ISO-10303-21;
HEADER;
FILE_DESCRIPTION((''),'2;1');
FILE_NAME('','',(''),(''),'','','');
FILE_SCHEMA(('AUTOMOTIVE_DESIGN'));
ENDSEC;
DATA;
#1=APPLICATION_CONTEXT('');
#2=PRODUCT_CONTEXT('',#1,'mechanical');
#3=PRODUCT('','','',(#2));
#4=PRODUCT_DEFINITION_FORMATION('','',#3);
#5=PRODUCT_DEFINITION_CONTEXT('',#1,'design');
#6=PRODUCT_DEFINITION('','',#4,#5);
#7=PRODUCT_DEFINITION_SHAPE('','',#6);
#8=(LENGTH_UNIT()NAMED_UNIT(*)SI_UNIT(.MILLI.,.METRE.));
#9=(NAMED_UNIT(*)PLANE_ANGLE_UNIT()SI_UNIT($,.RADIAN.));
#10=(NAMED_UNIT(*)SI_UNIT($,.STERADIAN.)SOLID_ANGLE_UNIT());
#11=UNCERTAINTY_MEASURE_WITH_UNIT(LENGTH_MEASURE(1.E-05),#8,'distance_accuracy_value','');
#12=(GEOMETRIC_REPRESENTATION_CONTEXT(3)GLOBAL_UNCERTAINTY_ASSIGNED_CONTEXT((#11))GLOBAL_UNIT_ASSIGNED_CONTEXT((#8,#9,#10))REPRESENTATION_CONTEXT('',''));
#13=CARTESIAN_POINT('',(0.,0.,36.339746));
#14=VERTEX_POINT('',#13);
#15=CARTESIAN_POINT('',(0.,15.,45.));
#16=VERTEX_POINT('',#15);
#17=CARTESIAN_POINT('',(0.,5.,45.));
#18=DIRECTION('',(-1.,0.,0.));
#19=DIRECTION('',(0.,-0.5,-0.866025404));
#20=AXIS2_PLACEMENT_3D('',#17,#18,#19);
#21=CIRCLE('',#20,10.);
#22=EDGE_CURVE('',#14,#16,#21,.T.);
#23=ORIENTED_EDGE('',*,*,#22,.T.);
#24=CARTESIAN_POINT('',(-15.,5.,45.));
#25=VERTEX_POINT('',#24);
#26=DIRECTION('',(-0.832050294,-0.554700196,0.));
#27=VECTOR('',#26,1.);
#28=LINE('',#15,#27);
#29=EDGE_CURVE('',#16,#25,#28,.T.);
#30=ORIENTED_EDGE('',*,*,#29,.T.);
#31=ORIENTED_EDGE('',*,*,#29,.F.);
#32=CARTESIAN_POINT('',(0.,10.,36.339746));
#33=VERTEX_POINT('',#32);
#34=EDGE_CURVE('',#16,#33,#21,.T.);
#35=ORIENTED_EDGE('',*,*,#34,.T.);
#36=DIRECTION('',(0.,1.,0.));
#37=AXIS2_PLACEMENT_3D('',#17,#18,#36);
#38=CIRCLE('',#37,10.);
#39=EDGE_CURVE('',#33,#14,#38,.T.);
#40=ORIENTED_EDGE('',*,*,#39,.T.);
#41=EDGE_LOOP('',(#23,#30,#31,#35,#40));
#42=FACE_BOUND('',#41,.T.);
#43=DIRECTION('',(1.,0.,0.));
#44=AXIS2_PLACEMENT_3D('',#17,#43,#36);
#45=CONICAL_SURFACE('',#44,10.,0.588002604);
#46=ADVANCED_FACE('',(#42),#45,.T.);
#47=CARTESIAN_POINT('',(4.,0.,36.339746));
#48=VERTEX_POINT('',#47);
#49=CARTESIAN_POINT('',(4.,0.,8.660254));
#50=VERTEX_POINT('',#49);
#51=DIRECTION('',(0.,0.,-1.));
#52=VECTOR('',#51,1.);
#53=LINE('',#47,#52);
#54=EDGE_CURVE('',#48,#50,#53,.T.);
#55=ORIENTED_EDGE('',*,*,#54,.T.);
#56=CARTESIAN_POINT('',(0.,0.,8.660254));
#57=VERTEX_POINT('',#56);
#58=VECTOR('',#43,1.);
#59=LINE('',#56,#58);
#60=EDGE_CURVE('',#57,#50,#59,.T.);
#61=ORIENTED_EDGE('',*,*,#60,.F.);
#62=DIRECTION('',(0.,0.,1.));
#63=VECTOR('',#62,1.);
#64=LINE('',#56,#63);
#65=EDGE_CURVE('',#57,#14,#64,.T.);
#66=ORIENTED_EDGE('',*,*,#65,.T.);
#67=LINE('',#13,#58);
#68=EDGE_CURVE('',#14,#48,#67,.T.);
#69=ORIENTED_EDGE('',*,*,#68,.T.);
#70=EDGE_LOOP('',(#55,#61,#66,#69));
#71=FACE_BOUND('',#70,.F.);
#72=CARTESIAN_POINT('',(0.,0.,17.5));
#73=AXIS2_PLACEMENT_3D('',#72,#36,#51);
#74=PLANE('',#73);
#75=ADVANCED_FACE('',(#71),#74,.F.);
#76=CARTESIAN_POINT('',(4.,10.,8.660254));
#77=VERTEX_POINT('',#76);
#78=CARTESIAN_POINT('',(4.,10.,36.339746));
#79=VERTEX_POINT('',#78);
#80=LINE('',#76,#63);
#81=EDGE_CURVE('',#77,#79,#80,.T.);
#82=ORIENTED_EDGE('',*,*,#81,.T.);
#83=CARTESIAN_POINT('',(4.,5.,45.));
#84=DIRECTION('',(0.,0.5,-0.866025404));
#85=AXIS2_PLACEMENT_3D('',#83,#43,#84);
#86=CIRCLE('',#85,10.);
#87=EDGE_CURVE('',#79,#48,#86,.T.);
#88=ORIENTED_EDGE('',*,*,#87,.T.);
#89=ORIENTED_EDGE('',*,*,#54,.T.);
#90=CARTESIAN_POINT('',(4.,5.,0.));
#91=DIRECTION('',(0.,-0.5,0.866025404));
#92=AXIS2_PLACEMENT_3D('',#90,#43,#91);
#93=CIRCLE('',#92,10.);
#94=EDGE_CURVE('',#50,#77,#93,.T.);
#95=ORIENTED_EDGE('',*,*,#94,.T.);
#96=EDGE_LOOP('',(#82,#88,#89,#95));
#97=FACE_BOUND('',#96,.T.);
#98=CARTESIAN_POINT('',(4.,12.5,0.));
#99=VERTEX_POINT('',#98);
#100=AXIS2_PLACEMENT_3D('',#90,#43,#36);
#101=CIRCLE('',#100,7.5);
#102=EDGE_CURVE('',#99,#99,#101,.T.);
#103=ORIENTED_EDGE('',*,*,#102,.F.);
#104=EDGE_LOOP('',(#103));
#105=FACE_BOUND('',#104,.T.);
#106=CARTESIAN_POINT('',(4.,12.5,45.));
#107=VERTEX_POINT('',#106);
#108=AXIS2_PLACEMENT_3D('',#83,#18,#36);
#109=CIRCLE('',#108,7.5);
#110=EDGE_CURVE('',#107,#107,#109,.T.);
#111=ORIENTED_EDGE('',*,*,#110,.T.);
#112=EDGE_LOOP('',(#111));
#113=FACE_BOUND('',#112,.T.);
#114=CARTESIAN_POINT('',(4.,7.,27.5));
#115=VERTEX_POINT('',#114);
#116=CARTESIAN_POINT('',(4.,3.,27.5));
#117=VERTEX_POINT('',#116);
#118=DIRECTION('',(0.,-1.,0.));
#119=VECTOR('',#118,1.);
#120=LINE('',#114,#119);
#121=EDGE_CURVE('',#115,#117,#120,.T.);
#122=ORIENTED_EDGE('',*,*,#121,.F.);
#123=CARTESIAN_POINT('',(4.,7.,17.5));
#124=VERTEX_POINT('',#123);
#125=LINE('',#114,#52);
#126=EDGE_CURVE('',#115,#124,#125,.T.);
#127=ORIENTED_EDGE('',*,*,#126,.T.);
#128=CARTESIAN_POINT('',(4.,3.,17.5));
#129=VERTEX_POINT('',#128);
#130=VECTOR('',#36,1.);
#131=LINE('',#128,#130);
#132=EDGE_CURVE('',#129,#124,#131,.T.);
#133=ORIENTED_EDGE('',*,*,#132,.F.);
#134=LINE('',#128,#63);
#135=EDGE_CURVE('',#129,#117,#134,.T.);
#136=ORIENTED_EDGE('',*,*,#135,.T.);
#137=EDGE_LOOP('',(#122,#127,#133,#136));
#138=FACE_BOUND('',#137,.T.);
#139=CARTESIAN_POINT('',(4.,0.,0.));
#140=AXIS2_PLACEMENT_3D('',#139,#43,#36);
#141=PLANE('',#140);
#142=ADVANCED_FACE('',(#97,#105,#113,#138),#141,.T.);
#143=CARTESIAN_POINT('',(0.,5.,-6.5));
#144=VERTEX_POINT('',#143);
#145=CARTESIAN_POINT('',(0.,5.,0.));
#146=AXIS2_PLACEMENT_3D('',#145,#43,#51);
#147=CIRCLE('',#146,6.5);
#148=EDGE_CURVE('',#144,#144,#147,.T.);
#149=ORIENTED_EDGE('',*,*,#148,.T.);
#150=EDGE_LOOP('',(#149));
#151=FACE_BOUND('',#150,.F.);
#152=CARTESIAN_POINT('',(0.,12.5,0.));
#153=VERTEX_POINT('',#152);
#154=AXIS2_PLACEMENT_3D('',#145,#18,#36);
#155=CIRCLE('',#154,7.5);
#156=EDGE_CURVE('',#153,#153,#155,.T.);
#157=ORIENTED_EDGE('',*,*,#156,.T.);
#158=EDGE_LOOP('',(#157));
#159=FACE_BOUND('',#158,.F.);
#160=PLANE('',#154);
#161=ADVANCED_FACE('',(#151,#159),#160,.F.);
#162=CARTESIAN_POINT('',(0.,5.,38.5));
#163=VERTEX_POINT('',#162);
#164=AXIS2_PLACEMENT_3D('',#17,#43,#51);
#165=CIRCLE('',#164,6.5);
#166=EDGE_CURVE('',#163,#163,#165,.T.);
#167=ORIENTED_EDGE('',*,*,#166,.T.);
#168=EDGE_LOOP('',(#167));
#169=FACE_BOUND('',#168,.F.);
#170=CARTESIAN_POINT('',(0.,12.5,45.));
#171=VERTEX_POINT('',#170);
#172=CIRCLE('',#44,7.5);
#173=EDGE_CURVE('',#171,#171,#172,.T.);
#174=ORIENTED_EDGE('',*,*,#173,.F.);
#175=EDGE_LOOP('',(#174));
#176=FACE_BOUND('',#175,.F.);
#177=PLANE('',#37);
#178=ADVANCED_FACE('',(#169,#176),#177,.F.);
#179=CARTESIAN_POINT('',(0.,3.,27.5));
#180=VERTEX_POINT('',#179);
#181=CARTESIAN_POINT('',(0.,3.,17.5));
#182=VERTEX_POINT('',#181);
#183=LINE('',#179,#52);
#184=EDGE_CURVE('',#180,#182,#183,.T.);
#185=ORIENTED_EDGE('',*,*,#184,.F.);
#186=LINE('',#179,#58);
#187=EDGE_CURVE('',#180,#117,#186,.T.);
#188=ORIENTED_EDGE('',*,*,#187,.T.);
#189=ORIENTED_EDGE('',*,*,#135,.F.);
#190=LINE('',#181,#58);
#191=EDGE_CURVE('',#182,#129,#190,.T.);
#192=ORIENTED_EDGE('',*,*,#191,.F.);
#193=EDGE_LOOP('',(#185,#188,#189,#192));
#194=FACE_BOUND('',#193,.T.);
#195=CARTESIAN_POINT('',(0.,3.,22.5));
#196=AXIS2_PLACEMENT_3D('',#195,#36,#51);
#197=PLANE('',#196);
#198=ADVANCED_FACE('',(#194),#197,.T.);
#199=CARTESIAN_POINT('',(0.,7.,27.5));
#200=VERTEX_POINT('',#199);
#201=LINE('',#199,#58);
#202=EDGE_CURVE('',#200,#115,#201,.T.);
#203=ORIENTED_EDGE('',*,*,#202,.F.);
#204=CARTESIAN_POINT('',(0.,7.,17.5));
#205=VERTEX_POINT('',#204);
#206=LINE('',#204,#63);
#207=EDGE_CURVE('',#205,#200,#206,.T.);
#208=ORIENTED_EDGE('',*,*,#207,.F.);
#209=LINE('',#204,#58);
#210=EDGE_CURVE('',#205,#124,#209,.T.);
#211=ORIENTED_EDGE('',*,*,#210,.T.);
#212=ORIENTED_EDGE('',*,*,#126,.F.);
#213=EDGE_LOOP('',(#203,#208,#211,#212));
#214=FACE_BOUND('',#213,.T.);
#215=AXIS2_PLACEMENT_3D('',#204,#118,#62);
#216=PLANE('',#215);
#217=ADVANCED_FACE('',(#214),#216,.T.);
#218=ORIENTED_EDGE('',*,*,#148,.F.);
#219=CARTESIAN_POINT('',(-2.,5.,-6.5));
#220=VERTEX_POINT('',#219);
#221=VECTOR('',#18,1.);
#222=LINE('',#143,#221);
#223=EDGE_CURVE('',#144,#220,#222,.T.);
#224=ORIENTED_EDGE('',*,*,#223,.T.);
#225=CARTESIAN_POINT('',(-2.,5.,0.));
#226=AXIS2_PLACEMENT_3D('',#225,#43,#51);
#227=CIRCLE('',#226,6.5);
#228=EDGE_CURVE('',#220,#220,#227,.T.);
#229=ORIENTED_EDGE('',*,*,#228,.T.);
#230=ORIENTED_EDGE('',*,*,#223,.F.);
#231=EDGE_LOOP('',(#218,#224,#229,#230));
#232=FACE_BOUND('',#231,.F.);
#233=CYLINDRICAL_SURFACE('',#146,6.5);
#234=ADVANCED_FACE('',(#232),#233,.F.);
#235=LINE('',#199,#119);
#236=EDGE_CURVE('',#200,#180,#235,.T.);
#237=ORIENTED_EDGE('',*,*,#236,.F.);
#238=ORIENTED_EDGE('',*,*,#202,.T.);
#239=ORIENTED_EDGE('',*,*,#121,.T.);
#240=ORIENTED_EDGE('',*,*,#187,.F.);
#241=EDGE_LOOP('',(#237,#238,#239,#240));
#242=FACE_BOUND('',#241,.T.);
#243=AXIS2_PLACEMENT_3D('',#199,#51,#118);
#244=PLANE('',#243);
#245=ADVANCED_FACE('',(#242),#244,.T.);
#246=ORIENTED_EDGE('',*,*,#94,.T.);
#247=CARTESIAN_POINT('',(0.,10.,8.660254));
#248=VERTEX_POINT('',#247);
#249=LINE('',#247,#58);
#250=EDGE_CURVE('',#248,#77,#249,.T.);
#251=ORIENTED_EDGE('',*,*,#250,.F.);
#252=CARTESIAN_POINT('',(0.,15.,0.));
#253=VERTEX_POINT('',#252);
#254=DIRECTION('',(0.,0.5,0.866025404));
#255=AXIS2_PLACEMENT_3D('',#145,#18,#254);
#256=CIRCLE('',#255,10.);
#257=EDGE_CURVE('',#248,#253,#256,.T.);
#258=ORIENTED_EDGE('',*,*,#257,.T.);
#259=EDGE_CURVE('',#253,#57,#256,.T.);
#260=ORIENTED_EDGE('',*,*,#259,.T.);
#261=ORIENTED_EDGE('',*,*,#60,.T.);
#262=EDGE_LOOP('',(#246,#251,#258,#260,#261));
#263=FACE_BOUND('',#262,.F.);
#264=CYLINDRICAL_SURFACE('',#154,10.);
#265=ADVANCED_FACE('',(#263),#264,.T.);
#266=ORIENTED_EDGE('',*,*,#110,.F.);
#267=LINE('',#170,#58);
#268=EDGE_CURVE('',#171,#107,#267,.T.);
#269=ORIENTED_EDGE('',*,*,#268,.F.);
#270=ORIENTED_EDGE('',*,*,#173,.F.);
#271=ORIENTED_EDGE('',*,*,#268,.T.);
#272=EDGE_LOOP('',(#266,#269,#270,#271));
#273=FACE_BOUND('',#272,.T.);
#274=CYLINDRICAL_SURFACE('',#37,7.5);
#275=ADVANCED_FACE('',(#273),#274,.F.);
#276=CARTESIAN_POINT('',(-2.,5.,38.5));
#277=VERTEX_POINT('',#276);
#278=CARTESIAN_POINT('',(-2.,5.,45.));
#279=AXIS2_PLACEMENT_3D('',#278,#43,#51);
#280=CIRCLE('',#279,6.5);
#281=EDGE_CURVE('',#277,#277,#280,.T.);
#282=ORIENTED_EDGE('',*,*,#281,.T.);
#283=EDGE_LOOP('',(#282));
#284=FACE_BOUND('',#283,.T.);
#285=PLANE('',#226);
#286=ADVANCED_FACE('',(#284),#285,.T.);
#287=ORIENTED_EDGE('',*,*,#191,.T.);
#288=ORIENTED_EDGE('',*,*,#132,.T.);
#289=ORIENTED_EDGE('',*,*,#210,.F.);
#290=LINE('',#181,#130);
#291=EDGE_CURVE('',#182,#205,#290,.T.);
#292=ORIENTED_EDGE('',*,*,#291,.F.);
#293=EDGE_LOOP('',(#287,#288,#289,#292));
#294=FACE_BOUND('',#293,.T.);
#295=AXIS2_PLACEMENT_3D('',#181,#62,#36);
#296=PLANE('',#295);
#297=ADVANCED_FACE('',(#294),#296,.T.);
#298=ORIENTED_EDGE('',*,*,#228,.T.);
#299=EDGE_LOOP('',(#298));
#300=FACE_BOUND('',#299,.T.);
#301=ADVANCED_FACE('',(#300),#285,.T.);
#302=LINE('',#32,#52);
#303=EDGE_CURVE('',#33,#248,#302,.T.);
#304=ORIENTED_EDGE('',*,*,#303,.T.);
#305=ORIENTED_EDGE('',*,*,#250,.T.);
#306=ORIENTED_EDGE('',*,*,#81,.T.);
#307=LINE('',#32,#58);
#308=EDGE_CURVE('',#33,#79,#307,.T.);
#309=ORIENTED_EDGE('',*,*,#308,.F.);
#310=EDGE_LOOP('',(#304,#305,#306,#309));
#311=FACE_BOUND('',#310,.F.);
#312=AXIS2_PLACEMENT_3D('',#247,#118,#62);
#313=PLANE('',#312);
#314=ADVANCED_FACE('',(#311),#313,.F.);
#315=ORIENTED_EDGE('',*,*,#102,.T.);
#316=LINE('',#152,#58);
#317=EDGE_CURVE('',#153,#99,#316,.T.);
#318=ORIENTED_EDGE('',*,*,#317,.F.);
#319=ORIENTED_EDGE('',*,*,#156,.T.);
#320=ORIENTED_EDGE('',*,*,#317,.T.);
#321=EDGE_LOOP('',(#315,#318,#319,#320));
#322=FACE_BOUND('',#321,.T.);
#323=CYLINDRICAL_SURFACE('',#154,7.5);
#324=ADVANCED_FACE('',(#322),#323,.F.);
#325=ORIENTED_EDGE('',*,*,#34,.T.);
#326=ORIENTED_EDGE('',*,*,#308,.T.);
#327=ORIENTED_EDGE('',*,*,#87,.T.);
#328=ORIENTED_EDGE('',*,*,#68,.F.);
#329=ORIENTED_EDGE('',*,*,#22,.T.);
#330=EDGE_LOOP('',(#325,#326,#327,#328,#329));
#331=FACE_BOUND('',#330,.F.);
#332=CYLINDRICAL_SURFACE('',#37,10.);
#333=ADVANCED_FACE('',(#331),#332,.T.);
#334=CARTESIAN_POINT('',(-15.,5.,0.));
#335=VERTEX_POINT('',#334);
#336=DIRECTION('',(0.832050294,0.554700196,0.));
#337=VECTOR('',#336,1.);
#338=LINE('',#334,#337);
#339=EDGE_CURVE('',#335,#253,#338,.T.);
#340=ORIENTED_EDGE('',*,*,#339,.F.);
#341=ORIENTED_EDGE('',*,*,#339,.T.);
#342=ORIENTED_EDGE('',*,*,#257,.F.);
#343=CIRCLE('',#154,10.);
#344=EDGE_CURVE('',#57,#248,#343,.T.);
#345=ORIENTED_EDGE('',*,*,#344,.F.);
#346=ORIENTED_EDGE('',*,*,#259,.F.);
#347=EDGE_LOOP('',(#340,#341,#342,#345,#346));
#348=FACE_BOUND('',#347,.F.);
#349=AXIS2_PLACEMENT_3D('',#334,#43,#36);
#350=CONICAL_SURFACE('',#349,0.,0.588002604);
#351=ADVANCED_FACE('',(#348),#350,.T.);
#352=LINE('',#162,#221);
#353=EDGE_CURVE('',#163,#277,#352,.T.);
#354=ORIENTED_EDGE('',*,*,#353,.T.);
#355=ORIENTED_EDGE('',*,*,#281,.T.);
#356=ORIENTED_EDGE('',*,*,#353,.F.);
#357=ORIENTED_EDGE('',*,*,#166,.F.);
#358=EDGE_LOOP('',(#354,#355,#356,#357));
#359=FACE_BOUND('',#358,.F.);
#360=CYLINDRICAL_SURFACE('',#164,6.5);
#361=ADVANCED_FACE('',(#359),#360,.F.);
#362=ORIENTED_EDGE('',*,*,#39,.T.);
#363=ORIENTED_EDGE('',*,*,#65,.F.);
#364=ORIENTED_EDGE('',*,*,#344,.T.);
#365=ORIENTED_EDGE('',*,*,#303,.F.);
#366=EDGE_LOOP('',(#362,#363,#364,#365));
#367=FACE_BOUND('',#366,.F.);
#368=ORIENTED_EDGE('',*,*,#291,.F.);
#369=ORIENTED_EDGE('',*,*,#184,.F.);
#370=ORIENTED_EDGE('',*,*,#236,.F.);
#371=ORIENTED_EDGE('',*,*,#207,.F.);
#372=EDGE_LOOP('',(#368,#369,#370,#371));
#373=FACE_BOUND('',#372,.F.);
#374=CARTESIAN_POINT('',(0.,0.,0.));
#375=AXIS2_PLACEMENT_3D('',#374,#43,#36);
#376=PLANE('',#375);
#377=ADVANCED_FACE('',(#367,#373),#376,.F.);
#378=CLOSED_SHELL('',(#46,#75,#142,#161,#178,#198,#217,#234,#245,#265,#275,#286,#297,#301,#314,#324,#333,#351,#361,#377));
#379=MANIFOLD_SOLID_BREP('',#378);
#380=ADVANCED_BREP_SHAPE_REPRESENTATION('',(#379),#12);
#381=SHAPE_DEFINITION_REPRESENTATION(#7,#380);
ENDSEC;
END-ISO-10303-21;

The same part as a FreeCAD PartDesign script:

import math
import FreeCAD as App
import Part
import Sketcher

V = App.Vector
Q = App.Units.Quantity

doc = App.newDocument("Part")
body = doc.addObject("PartDesign::Body", "Body")

# Sketch on YZ plane
sketch1 = doc.addObject("Sketcher::SketchObject", "Sketch")
body.addObject(sketch1)
sketch1.AttachmentSupport = (doc.YZ_Plane, [""])
sketch1.MapMode = "FlatFace"
sketch1.addGeometry([
    Part.LineSegment(V(10, 8.660254, 0), V(10, 36.339746, 0)),  # 0
    Part.ArcOfCircle(Part.Circle(V(5, 45, 0), V(0, 0, 1), 10), math.radians(-60), math.radians(240)),  # 1
    Part.LineSegment(V(0, 36.339746, 0), V(0, 8.660254, 0)),  # 2
    Part.ArcOfCircle(Part.Circle(V(5, 0, 0), V(0, 0, 1), 10), math.radians(120), math.radians(420)),  # 3
    Part.Circle(V(5, 0, 0), V(0, 0, 1), 7.5),  # 4
    Part.LineSegment(V(3, 17.5, 0), V(3, 27.5, 0)),  # 5
    Part.LineSegment(V(3, 27.5, 0), V(7, 27.5, 0)),  # 6
    Part.LineSegment(V(7, 27.5, 0), V(7, 17.5, 0)),  # 7
    Part.LineSegment(V(7, 17.5, 0), V(3, 17.5, 0)),  # 8
    Part.Circle(V(5, 45, 0), V(0, 0, 1), 7.5),  # 9
], False)
sketch1.addConstraint([
    Sketcher.Constraint("Coincident", 0, 2, 1, 1),
    Sketcher.Constraint("Coincident", 1, 2, 2, 1),
    Sketcher.Constraint("Coincident", 2, 2, 3, 1),
    Sketcher.Constraint("Coincident", 3, 2, 0, 1),
    Sketcher.Constraint("Coincident", 5, 2, 6, 1),
    Sketcher.Constraint("Coincident", 6, 2, 7, 1),
    Sketcher.Constraint("Coincident", 7, 2, 8, 1),
    Sketcher.Constraint("Coincident", 8, 2, 5, 1),
    Sketcher.Constraint("Vertical", 0),
    Sketcher.Constraint("Vertical", 2),
    Sketcher.Constraint("Vertical", 5),
    Sketcher.Constraint("Horizontal", 6),
    Sketcher.Constraint("Vertical", 7),
    Sketcher.Constraint("Horizontal", 8),
    Sketcher.Constraint("Coincident", 4, 3, 3, 3),
    Sketcher.Constraint("Coincident", 9, 3, 1, 3),
    Sketcher.Constraint("Equal", 1, 3),
    Sketcher.Constraint("Equal", 4, 9),
    Sketcher.Constraint("PointOnObject", 3, 3, -1),
    Sketcher.Constraint("PointOnObject", 1, 2, -2),
    Sketcher.Constraint("Horizontal", 0, 2, 1, 2),
    Sketcher.Constraint("Horizontal", 2, 2, 3, 2),
    Sketcher.Constraint("Diameter", 4, Q("15 mm")),
    Sketcher.Constraint("Radius", 1, Q("10 mm")),
    Sketcher.Constraint("DistanceY", 5, 1, 5, 2, Q("10 mm")),
    Sketcher.Constraint("DistanceY", -1, 1, 1, 3, Q("45 mm")),
    Sketcher.Constraint("DistanceX", -1, 1, 0, 2, Q("10 mm")),
    Sketcher.Constraint("DistanceX", 6, 1, 6, 2, Q("4 mm")),
    Sketcher.Constraint("DistanceX", -1, 1, 5, 2, Q("3 mm")),
    Sketcher.Constraint("DistanceY", -1, 1, 5, 2, Q("27.5 mm")),
])
pad1 = doc.addObject("PartDesign::Pad", "Pad")
body.addObject(pad1)
pad1.Profile = sketch1
pad1.Length = 4

# Sketch on XY plane
sketch2 = doc.addObject("Sketcher::SketchObject", "Sketch001")
body.addObject(sketch2)
sketch2.AttachmentSupport = (doc.XY_Plane, [""])
sketch2.MapMode = "FlatFace"
sketch2.addGeometry([
    Part.LineSegment(V(-15, 5, 0), V(0, 15, 0)),
    Part.LineSegment(V(0, 15, 0), V(0, 5, 0)),
    Part.LineSegment(V(0, 5, 0), V(-15, 5, 0)),
], False)
sketch2.addGeometry(Part.LineSegment(V(0, 5, 0), V(-15, 5, 0)), True)  # axis
sketch2.addConstraint([
    Sketcher.Constraint("Coincident", 0, 2, 1, 1),
    Sketcher.Constraint("Coincident", 1, 2, 2, 1),
    Sketcher.Constraint("Coincident", 2, 2, 0, 1),
    Sketcher.Constraint("Vertical", 1),
    Sketcher.Constraint("Horizontal", 2),
    Sketcher.Constraint("Horizontal", 3),
    Sketcher.Constraint("Coincident", 3, 1, 1, 2),
    Sketcher.Constraint("PointOnObject", 0, 2, -2),
    Sketcher.Constraint("Equal", 2, 3),
    Sketcher.Constraint("DistanceX", 2, 2, 2, 1, Q("15 mm")),
    Sketcher.Constraint("DistanceY", -1, 1, 0, 2, Q("15 mm")),
    Sketcher.Constraint("DistanceY", 1, 2, 1, 1, Q("10 mm")),
])
revolution = doc.addObject("PartDesign::Revolution", "Revolution")
body.addObject(revolution)
revolution.Profile = sketch2
revolution.ReferenceAxis = (sketch2, ["Axis0"])
revolution.Angle = 360

# Sketch on XY plane
sketch3 = doc.addObject("Sketcher::SketchObject", "Sketch002")
body.addObject(sketch3)
sketch3.AttachmentSupport = (doc.XY_Plane, [""])
sketch3.MapMode = "FlatFace"
sketch3.AttachmentOffset = App.Placement(V(0, 0, 45), App.Rotation())
sketch3.addGeometry([
    Part.LineSegment(V(-15, 5, 0), V(0, 15, 0)),
    Part.LineSegment(V(0, 15, 0), V(0, 5, 0)),
    Part.LineSegment(V(0, 5, 0), V(-15, 5, 0)),
], False)
sketch3.addGeometry(Part.LineSegment(V(0, 5, 0), V(-15, 5, 0)), True)  # axis
sketch3.addConstraint([
    Sketcher.Constraint("Coincident", 0, 2, 1, 1),
    Sketcher.Constraint("Coincident", 1, 2, 2, 1),
    Sketcher.Constraint("Coincident", 2, 2, 0, 1),
    Sketcher.Constraint("Vertical", 1),
    Sketcher.Constraint("Horizontal", 2),
    Sketcher.Constraint("Horizontal", 3),
    Sketcher.Constraint("Coincident", 3, 1, 1, 2),
    Sketcher.Constraint("PointOnObject", 0, 2, -2),
    Sketcher.Constraint("Equal", 2, 3),
    Sketcher.Constraint("DistanceX", 2, 2, 2, 1, Q("15 mm")),
    Sketcher.Constraint("DistanceY", 1, 2, 1, 1, Q("10 mm")),
    Sketcher.Constraint("DistanceY", -1, 1, 0, 2, Q("15 mm")),
])
revolution2 = doc.addObject("PartDesign::Revolution", "Revolution001")
body.addObject(revolution2)
revolution2.Profile = sketch3
revolution2.ReferenceAxis = (sketch3, ["Axis0"])
revolution2.Angle = 360

# Sketch on YZ plane
sketch4 = doc.addObject("Sketcher::SketchObject", "Sketch003")
body.addObject(sketch4)
sketch4.AttachmentSupport = (doc.YZ_Plane, [""])
sketch4.MapMode = "FlatFace"
sketch4.addGeometry([
    Part.Circle(V(5, 0, 0), V(0, 0, 1), 6.5),
    Part.Circle(V(5, 45, 0), V(0, 0, 1), 6.5),
], False)
sketch4.addConstraint([
    Sketcher.Constraint("Equal", 0, 1),
    Sketcher.Constraint("PointOnObject", 0, 3, -1),
    Sketcher.Constraint("Vertical", 0, 3, 1, 3),
    Sketcher.Constraint("Diameter", 0, Q("13 mm")),
    Sketcher.Constraint("DistanceX", -1, 1, 0, 3, Q("5 mm")),
    Sketcher.Constraint("DistanceY", -1, 1, 1, 3, Q("45 mm")),
])
pocket1 = doc.addObject("PartDesign::Pocket", "Pocket")
body.addObject(pocket1)
pocket1.Profile = sketch4
pocket1.Length = 2

doc.recompute()
